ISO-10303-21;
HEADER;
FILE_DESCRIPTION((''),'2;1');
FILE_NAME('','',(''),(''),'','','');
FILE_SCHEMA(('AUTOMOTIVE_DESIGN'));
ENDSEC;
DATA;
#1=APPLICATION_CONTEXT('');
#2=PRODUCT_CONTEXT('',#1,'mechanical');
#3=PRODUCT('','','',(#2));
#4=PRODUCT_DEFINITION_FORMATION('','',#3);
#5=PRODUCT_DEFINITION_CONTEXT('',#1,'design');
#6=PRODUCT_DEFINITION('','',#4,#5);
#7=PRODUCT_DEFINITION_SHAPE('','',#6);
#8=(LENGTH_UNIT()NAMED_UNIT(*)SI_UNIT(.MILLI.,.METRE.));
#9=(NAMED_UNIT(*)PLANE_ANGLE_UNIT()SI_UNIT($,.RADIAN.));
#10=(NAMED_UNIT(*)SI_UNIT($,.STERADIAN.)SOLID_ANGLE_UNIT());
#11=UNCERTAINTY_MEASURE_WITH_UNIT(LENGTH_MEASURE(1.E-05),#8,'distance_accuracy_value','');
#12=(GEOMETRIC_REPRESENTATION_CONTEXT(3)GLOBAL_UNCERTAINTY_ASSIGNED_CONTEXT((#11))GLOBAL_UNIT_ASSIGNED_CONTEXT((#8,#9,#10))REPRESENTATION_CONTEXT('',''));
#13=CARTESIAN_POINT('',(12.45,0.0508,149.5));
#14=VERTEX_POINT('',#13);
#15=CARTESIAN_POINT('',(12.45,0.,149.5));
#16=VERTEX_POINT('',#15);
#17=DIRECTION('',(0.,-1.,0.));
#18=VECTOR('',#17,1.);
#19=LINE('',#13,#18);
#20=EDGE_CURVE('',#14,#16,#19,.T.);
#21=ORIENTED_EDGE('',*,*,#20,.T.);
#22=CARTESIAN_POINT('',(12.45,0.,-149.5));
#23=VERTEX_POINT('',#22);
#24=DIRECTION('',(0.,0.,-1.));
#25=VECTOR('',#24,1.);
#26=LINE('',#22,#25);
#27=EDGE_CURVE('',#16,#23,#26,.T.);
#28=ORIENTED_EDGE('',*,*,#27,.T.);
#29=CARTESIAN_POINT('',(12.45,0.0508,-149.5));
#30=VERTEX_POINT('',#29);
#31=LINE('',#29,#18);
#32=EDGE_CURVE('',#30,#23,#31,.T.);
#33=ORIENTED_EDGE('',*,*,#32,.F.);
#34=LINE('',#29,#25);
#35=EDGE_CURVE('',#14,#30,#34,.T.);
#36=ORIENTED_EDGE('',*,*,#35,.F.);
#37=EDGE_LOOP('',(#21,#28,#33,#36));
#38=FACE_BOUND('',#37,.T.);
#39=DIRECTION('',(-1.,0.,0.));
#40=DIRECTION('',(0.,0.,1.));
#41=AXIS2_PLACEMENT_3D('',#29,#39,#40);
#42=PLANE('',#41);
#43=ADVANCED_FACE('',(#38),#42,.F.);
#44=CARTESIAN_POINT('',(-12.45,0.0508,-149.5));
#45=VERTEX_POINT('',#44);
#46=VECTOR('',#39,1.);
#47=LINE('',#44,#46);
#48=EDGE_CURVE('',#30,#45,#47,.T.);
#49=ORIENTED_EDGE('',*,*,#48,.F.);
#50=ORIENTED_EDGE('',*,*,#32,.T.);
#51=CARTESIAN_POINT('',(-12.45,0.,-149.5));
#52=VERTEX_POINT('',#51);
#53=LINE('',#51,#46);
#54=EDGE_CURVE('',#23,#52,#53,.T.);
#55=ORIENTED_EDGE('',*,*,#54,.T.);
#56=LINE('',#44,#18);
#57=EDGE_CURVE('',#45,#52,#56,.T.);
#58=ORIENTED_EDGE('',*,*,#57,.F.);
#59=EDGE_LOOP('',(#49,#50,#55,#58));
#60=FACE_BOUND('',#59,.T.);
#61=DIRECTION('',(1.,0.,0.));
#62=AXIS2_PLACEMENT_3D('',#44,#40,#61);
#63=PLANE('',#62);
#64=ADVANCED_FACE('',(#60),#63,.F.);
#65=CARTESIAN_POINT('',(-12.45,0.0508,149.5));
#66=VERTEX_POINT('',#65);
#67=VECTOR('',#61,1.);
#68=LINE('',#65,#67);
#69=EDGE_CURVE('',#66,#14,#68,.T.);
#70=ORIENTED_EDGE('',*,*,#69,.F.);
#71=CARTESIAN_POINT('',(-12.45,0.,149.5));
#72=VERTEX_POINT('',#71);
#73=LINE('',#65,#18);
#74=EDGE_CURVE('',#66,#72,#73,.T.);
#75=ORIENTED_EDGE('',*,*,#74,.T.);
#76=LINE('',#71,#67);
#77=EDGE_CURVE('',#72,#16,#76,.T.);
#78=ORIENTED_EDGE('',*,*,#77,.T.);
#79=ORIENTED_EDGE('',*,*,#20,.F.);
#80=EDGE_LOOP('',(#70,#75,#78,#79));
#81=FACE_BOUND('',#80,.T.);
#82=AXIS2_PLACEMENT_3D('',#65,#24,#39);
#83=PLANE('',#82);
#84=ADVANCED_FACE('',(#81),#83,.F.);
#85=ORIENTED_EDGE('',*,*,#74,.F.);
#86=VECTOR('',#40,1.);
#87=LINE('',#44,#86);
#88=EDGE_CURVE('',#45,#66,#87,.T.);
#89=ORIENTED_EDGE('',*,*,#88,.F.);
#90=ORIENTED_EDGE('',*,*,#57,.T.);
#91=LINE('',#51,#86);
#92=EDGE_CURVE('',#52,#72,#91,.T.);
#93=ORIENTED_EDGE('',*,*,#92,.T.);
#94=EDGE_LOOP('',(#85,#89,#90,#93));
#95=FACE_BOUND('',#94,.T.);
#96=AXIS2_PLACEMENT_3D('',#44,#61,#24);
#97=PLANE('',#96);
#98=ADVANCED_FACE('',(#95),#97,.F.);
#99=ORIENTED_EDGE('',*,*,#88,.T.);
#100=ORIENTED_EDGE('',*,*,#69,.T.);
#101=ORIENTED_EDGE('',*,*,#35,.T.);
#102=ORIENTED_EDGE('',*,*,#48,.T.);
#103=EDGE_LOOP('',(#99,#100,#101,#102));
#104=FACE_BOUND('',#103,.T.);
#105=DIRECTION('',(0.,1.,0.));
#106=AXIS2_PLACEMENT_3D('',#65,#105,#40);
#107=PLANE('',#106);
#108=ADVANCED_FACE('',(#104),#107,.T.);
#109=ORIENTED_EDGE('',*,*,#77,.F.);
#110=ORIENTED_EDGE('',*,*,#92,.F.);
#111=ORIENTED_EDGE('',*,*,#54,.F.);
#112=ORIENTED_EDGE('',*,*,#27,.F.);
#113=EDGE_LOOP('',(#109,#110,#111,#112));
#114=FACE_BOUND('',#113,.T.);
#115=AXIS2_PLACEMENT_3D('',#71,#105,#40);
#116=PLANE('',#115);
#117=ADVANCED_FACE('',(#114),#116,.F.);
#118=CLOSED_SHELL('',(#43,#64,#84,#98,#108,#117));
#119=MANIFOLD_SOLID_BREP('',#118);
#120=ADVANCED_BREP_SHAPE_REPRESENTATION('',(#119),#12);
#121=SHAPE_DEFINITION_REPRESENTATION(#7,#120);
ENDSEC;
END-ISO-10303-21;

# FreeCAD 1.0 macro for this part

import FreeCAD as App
import Part
import Sketcher

V = App.Vector

doc = App.newDocument("Part")
body = doc.addObject("PartDesign::Body", "Body")

sketch1 = body.newObject("Sketcher::SketchObject", "Sketch")
sketch1.AttachmentSupport = (doc.getObject("XZ_Plane"), [""])
sketch1.MapMode = "FlatFace"
sketch1.addGeometry(Part.LineSegment(V(-12.45, -149.5, 0), V(-12.45, 149.5, 0)), False)
sketch1.addGeometry(Part.LineSegment(V(-12.45, 149.5, 0), V(12.45, 149.5, 0)), False)
sketch1.addGeometry(Part.LineSegment(V(12.45, 149.5, 0), V(12.45, -149.5, 0)), False)
sketch1.addGeometry(Part.LineSegment(V(12.45, -149.5, 0), V(-12.45, -149.5, 0)), False)
sketch1.addConstraint(Sketcher.Constraint("Coincident", 0, 2, 1, 1))
sketch1.addConstraint(Sketcher.Constraint("Coincident", 1, 2, 2, 1))
sketch1.addConstraint(Sketcher.Constraint("Coincident", 2, 2, 3, 1))
sketch1.addConstraint(Sketcher.Constraint("Coincident", 3, 2, 0, 1))
sketch1.addConstraint(Sketcher.Constraint("Vertical", 0))
sketch1.addConstraint(Sketcher.Constraint("Horizontal", 1))
sketch1.addConstraint(Sketcher.Constraint("Vertical", 2))
sketch1.addConstraint(Sketcher.Constraint("Horizontal", 3))
sketch1.addConstraint(Sketcher.Constraint("Symmetric", 0, 2, 2, 2, -1, 1))
sketch1.addConstraint(Sketcher.Constraint("DistanceY", 0, 1, 0, 2, 299.0))
sketch1.addConstraint(Sketcher.Constraint("DistanceX", 1, 1, 1, 2, 24.9))
pad1 = body.newObject("PartDesign::Pad", "Pad")
pad1.Profile = sketch1
pad1.Length = 0.0508
pad1.Reversed = True

doc.recompute()
